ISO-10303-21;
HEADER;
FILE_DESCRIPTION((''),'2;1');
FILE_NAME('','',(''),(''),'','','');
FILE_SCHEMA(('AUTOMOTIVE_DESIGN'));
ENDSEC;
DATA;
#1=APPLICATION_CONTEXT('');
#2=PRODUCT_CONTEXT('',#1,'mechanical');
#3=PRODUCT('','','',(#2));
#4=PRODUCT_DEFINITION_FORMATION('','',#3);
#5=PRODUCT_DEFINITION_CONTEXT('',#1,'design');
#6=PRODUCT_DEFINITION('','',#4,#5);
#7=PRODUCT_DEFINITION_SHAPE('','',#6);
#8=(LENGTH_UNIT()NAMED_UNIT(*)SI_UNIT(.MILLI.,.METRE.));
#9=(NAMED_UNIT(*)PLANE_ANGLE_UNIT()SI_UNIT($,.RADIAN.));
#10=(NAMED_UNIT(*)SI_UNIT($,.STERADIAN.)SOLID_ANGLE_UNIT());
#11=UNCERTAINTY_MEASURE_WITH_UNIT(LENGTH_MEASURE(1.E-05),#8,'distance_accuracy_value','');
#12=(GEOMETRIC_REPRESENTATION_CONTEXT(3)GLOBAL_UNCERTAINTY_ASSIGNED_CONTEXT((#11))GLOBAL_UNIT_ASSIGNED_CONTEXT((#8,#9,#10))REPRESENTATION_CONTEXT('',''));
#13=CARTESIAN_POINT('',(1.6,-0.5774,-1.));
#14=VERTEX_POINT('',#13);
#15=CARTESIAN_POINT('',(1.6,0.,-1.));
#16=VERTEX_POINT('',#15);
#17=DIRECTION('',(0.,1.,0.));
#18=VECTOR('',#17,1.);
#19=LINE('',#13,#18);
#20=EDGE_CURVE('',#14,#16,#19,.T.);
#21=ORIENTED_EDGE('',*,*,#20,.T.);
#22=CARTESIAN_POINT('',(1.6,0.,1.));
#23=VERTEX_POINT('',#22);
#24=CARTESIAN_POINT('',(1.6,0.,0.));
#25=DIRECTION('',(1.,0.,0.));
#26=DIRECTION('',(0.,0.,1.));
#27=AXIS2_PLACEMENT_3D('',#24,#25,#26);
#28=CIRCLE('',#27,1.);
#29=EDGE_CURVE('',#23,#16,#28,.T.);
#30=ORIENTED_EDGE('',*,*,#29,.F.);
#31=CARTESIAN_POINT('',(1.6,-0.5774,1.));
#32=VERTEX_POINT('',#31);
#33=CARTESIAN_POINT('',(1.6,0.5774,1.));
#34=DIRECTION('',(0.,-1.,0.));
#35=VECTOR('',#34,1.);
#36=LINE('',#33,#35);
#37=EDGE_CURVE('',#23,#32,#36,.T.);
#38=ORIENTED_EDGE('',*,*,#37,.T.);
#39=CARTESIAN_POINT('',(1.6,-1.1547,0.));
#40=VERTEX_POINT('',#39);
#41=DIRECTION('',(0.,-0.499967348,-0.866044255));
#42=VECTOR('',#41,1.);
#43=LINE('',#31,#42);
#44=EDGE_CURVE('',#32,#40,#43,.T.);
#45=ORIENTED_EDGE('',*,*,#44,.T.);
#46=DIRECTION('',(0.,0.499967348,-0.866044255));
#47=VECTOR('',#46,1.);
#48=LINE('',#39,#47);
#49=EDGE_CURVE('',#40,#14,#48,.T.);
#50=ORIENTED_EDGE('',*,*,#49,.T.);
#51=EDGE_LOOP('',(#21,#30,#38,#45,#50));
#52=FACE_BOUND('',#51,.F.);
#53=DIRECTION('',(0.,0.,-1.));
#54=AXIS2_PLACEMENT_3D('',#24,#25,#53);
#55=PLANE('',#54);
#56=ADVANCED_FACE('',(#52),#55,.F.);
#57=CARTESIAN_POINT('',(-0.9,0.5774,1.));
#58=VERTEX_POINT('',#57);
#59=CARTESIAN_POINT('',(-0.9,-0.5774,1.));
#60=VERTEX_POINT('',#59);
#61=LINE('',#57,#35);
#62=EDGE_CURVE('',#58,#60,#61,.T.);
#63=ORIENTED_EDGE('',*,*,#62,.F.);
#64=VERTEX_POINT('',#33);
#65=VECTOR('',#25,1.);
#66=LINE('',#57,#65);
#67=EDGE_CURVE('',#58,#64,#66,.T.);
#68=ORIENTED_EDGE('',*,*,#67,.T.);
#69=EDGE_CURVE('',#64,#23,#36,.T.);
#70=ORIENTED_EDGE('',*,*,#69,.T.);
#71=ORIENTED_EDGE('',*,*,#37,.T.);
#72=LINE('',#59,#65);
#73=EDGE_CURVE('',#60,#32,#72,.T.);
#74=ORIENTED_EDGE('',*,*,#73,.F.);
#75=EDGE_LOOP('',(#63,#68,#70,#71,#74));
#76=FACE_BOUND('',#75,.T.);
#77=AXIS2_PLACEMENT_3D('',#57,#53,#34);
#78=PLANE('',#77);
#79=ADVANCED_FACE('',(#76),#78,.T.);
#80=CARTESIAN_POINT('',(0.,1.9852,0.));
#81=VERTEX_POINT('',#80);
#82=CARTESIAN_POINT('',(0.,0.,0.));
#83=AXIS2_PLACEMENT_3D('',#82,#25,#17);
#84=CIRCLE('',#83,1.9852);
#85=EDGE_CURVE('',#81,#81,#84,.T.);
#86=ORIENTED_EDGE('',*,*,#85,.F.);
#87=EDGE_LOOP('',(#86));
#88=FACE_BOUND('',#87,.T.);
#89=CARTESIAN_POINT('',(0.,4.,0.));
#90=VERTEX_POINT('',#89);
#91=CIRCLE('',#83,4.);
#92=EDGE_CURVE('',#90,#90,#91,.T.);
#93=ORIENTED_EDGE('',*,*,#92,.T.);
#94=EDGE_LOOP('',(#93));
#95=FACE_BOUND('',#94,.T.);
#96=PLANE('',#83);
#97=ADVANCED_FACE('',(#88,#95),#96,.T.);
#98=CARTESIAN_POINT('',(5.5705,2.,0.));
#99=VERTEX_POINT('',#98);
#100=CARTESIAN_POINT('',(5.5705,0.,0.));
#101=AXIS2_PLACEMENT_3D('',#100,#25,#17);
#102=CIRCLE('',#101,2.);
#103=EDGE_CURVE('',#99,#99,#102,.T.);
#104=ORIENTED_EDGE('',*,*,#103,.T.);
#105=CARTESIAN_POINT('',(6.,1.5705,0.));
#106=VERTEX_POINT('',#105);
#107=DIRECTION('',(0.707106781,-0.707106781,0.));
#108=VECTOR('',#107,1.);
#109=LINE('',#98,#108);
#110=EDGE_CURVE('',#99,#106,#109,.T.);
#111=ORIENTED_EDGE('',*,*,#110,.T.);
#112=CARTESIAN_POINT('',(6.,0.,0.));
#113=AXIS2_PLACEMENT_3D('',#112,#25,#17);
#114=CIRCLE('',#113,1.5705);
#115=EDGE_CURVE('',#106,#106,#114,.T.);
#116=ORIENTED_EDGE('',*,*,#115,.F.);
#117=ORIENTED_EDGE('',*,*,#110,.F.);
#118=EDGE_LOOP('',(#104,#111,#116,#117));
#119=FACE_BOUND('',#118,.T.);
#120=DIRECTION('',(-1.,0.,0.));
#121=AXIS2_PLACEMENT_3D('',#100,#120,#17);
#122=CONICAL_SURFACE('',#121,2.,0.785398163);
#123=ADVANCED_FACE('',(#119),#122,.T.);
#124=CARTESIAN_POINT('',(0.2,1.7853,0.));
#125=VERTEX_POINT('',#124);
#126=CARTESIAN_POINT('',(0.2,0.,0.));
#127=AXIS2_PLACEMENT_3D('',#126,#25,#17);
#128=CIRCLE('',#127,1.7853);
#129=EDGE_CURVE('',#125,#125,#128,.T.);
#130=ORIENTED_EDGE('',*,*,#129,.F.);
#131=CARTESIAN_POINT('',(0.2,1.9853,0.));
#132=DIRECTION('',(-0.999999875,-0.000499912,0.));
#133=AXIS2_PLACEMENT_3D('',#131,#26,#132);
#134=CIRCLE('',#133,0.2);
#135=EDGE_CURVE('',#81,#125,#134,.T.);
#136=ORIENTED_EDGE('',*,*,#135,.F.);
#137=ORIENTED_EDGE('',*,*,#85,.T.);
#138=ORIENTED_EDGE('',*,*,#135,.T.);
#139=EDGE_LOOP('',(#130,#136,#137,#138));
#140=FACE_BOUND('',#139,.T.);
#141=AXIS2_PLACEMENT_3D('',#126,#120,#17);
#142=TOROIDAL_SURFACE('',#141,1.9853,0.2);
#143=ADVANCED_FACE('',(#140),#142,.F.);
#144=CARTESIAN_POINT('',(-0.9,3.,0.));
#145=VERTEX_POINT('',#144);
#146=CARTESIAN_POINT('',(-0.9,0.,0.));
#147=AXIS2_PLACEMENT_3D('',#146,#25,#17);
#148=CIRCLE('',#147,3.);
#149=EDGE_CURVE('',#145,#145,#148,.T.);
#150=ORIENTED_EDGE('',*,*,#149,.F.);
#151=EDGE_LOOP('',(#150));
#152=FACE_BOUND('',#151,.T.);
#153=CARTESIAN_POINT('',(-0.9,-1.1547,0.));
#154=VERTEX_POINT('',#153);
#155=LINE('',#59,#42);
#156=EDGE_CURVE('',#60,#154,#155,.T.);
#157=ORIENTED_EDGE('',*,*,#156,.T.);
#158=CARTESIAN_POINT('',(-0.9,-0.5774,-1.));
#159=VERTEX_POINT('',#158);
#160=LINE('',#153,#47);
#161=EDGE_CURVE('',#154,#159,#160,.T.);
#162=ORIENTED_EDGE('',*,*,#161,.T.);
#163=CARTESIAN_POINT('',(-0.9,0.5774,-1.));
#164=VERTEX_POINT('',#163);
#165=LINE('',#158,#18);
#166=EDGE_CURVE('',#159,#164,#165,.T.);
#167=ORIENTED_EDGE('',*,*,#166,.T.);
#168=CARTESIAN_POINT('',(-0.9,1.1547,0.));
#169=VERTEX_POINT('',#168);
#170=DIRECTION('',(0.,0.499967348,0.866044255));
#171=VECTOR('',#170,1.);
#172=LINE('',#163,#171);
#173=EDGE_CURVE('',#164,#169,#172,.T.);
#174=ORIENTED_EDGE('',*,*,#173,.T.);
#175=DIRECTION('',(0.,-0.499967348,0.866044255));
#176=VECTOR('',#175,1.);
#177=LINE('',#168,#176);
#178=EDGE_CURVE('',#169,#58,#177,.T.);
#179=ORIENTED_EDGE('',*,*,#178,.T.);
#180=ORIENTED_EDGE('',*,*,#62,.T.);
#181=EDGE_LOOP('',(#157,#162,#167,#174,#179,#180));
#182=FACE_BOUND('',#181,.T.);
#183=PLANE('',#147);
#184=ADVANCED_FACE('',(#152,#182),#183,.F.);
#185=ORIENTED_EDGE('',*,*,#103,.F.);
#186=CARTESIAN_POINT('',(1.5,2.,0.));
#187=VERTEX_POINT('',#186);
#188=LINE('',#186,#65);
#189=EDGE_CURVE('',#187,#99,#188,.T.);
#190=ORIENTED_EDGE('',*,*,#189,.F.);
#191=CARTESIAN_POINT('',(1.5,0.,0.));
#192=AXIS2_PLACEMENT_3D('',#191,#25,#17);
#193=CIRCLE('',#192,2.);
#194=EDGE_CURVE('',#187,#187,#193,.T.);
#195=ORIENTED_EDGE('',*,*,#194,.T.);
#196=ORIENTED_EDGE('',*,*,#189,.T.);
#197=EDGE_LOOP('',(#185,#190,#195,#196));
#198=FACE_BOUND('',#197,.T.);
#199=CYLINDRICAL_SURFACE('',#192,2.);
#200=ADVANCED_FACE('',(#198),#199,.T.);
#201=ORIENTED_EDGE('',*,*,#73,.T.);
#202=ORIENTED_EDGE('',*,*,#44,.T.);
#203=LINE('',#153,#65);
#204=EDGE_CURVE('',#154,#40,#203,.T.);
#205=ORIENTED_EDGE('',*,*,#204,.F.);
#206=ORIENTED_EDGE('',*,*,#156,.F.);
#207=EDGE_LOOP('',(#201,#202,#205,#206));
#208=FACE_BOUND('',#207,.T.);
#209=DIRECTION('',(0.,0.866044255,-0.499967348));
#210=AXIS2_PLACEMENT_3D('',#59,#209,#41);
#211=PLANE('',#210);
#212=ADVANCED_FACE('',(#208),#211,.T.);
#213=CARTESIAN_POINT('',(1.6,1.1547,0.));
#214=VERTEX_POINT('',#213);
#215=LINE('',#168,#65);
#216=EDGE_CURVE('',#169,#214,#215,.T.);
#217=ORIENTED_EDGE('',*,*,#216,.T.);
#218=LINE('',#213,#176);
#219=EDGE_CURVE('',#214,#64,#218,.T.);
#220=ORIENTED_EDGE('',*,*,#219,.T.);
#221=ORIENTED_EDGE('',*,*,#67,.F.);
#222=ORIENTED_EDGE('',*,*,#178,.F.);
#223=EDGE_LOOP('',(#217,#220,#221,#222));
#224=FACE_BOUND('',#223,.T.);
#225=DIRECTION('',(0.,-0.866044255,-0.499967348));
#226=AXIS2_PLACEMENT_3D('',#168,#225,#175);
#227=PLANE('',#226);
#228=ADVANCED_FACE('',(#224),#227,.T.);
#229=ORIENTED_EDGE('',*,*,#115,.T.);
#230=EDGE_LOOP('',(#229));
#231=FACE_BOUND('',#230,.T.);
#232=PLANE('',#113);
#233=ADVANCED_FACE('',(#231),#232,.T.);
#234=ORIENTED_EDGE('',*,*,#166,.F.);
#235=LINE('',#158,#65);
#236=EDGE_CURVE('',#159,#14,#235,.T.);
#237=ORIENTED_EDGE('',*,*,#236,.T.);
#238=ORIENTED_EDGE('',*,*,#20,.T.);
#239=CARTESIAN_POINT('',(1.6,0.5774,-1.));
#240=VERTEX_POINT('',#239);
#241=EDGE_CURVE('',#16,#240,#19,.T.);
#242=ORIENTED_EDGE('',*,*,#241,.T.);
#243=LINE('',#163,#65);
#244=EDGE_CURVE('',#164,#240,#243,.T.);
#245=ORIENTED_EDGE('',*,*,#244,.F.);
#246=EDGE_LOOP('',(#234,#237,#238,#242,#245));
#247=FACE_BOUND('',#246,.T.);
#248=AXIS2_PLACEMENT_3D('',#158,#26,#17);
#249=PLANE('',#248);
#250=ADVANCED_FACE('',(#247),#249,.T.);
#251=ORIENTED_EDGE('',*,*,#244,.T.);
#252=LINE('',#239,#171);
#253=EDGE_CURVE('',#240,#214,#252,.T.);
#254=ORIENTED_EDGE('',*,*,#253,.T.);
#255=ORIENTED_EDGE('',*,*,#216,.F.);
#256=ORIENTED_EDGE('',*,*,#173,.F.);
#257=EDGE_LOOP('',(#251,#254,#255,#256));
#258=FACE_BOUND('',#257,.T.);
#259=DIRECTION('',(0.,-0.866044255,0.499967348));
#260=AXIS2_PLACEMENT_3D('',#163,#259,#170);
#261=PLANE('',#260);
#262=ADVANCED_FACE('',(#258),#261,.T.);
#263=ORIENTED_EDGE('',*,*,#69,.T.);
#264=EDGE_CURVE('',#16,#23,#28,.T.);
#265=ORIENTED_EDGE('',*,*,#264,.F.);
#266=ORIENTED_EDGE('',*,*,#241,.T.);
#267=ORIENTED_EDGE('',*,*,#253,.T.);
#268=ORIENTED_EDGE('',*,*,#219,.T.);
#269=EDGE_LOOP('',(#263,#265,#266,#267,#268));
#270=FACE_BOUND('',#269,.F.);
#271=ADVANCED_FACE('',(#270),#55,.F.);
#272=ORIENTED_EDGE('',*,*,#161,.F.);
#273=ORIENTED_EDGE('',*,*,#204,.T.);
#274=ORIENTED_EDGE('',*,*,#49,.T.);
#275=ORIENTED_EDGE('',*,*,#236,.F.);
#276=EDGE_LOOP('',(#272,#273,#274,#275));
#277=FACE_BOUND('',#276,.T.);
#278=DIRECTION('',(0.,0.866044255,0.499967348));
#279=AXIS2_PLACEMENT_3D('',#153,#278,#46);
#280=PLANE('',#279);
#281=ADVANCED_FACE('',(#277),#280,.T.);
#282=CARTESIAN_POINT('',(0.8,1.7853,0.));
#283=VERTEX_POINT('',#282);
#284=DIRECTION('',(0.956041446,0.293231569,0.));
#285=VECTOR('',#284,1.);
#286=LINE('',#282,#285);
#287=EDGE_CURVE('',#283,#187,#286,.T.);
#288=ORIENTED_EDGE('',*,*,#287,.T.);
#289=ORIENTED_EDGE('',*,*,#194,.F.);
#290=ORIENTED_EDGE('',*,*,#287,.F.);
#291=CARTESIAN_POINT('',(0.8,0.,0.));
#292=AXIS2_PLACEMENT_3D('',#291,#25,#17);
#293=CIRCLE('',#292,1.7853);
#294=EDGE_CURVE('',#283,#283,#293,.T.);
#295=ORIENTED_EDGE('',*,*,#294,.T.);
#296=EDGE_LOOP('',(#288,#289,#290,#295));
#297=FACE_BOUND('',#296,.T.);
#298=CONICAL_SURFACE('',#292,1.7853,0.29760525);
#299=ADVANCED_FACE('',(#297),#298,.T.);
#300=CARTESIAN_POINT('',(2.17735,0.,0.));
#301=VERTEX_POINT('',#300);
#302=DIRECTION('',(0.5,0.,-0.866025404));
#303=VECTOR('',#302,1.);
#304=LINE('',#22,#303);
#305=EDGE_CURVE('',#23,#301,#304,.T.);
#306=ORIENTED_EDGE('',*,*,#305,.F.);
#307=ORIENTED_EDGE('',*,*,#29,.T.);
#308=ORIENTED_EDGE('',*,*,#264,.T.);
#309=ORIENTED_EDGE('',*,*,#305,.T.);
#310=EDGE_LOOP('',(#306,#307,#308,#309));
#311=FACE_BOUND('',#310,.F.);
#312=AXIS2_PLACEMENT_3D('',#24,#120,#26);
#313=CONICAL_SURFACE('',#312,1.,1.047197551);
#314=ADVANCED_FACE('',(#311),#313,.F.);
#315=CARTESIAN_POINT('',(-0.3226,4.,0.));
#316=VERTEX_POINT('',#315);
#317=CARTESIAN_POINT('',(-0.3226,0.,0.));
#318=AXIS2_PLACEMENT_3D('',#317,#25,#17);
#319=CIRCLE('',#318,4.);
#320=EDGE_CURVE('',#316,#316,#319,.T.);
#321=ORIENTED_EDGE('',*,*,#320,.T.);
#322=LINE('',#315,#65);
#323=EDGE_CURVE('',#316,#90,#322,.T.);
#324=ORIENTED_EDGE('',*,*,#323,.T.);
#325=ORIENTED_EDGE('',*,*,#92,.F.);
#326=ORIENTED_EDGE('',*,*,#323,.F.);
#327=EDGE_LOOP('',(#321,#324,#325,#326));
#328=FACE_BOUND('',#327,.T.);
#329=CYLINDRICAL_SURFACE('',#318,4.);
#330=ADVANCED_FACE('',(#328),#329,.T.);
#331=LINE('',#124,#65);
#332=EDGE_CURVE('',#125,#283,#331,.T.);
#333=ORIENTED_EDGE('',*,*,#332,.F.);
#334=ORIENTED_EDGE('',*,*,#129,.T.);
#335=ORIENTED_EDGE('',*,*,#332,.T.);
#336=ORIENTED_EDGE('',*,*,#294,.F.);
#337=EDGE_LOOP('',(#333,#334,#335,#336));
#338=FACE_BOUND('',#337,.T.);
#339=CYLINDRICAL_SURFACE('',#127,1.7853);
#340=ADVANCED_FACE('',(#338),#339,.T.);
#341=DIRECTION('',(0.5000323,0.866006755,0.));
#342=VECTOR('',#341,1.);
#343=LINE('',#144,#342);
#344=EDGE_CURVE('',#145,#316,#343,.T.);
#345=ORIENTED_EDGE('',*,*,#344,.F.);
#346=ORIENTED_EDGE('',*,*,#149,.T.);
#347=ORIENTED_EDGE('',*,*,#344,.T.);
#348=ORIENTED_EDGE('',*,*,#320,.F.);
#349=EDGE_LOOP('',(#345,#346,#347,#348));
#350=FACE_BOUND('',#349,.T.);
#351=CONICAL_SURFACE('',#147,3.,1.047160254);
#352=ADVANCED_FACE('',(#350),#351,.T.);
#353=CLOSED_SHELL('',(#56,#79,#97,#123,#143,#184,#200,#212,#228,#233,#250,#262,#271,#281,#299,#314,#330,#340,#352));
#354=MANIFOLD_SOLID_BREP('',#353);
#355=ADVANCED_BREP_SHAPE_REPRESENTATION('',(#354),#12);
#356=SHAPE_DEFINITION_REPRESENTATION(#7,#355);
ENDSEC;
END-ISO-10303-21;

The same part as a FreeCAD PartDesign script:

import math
import FreeCAD as App
import Part
import Sketcher

V = App.Vector
Q = App.Units.Quantity

doc = App.newDocument("Part")
body = doc.addObject("PartDesign::Body", "Body")

sketch1 = body.newObject("Sketcher::SketchObject", "Sketch")
sketch1.AttachmentSupport = (doc.getObject("XY_Plane"), [""])
sketch1.MapMode = "FlatFace"
sketch1.addGeometry([
    Part.LineSegment(V(-0.9, 0, 0), V(6, 0, 0)),
    Part.LineSegment(V(6, 0, 0), V(6, 1.57, 0)),
    Part.LineSegment(V(6, 1.57, 0), V(5.57, 2, 0)),
    Part.LineSegment(V(5.57, 2, 0), V(1.5, 2, 0)),
    Part.LineSegment(V(1.5, 2, 0), V(0.8, 1.79, 0)),
    Part.LineSegment(V(0.8, 1.79, 0), V(0.2, 1.79, 0)),
    Part.ArcOfCircle(Part.Circle(V(0.2, 1.99, 0), V(0, 0, 1), 0.2), math.radians(-180), math.radians(-90)),
    Part.LineSegment(V(0, 1.99, 0), V(0, 4, 0)),
    Part.LineSegment(V(0, 4, 0), V(-0.32, 4, 0)),
    Part.LineSegment(V(-0.32, 4, 0), V(-0.9, 3, 0)),
    Part.LineSegment(V(-0.9, 3, 0), V(-0.9, 0, 0)),
], False)
sketch1.addConstraint([
    Sketcher.Constraint("Coincident", 0, 2, 1, 1),
    Sketcher.Constraint("Coincident", 1, 2, 2, 1),
    Sketcher.Constraint("Coincident", 2, 2, 3, 1),
    Sketcher.Constraint("Coincident", 3, 2, 4, 1),
    Sketcher.Constraint("Coincident", 4, 2, 5, 1),
    Sketcher.Constraint("Tangent", 5, 2, 6, 2),
    Sketcher.Constraint("Tangent", 6, 1, 7, 1),
    Sketcher.Constraint("Coincident", 7, 2, 8, 1),
    Sketcher.Constraint("Coincident", 8, 2, 9, 1),
    Sketcher.Constraint("Coincident", 9, 2, 10, 1),
    Sketcher.Constraint("Coincident", 10, 2, 0, 1),
    Sketcher.Constraint("Horizontal", 0),
    Sketcher.Constraint("Vertical", 1),
    Sketcher.Constraint("Horizontal", 3),
    Sketcher.Constraint("Horizontal", 5),
    Sketcher.Constraint("Vertical", 7),
    Sketcher.Constraint("Horizontal", 8),
    Sketcher.Constraint("Vertical", 10),
    Sketcher.Constraint("PointOnObject", 0, 2, -1),
    Sketcher.Constraint("PointOnObject", 6, 1, -2),
    Sketcher.Constraint("Radius", 6, Q("0.2 mm")),
    Sketcher.Constraint("DistanceY", 10, 2, 10, 1, Q("3 mm")),
    Sketcher.Constraint("Angle", 2, Q("135 deg")),
    Sketcher.Constraint("DistanceX", 0, 1, 0, 2, Q("6.9 mm")),
    Sketcher.Constraint("DistanceX", 5, 2, 5, 1, Q("0.6 mm")),
    Sketcher.Constraint("DistanceX", -1, 1, 0, 2, Q("6 mm")),
    Sketcher.Constraint("DistanceY", -1, 1, 2, 2, Q("2 mm")),
    Sketcher.Constraint("DistanceY", -1, 1, 7, 2, Q("4 mm")),
    Sketcher.Constraint("DistanceX", -1, 1, 3, 2, Q("1.5 mm")),
    Sketcher.Constraint("DistanceX", 3, 2, 3, 1, Q("4.0705 mm")),
    Sketcher.Constraint("DistanceX", 8, 2, 8, 1, Q("0.3226 mm")),
    Sketcher.Constraint("DistanceY", 7, 1, 7, 2, Q("2.0148 mm")),
])
revolution = body.newObject("PartDesign::Revolution", "Revolution")
revolution.Profile = sketch1
revolution.ReferenceAxis = (sketch1, ["H_Axis"])
revolution.Angle = 360

sketch2 = body.newObject("Sketcher::SketchObject", "Sketch001")
sketch2.AttachmentSupport = (doc.getObject("YZ_Plane"), [""])
sketch2.MapMode = "FlatFace"
sketch2.AttachmentOffset = App.Placement(V(0, 0, -0.9), App.Rotation())
sketch2.addGeometry(Part.Circle(V(0, 0, 0), V(0, 0, 1), 1), False)
sketch2.addConstraint([
    Sketcher.Constraint("Coincident", 0, 3, -1, 1),
    Sketcher.Constraint("Diameter", 0, Q("2 mm")),
])
doc.recompute()
hole = body.newObject("PartDesign::Hole", "Hole")
hole.Profile = sketch2
hole.ThreadType = "None"
hole.Diameter = 2
hole.DepthType = "Dimension"
hole.Depth = 2.5
hole.DrillPoint = "Angled"
hole.DrillPointAngle = 120
hole.Reversed = True

sketch3 = body.newObject("Sketcher::SketchObject", "Sketch002")
sketch3.AttachmentSupport = (doc.getObject("YZ_Plane"), [""])
sketch3.MapMode = "FlatFace"
sketch3.AttachmentOffset = App.Placement(V(0, 0, -0.9), App.Rotation())
sketch3.addGeometry([
    Part.LineSegment(V(0.6, 1, 0), V(-0.6, 1, 0)),
    Part.LineSegment(V(-0.6, 1, 0), V(-1.2, 0, 0)),
    Part.LineSegment(V(-1.2, 0, 0), V(-0.6, -1, 0)),
    Part.LineSegment(V(-0.6, -1, 0), V(0.6, -1, 0)),
    Part.LineSegment(V(0.6, -1, 0), V(1.2, 0, 0)),
    Part.LineSegment(V(1.2, 0, 0), V(0.6, 1, 0)),
], False)
sketch3.addConstraint([
    Sketcher.Constraint("Coincident", 0, 2, 1, 1),
    Sketcher.Constraint("Coincident", 1, 2, 2, 1),
    Sketcher.Constraint("Coincident", 2, 2, 3, 1),
    Sketcher.Constraint("Coincident", 3, 2, 4, 1),
    Sketcher.Constraint("Coincident", 4, 2, 5, 1),
    Sketcher.Constraint("Coincident", 5, 2, 0, 1),
    Sketcher.Constraint("Horizontal", 0),
    Sketcher.Constraint("Horizontal", 3),
    Sketcher.Constraint("Symmetric", 0, 2, 3, 2, -1, 1),
    Sketcher.Constraint("Symmetric", 1, 2, 4, 2, -1, 1),
    Sketcher.Constraint("PointOnObject", 1, 2, -1),
    Sketcher.Constraint("Parallel", 2, 5),
    Sketcher.Constraint("Vertical", 0, 2, 2, 2),
    Sketcher.Constraint("DistanceY", -1, 1, 0, 2, Q("1 mm")),
    Sketcher.Constraint("DistanceX", 0, 2, 0, 1, Q("1.1548 mm")),
    Sketcher.Constraint("DistanceX", 1, 2, 3, 2, Q("1.732 mm")),
])
pocket1 = body.newObject("PartDesign::Pocket", "Pocket")
pocket1.Profile = sketch3
pocket1.Length = 2.5
pocket1.Reversed = True

doc.recompute()
